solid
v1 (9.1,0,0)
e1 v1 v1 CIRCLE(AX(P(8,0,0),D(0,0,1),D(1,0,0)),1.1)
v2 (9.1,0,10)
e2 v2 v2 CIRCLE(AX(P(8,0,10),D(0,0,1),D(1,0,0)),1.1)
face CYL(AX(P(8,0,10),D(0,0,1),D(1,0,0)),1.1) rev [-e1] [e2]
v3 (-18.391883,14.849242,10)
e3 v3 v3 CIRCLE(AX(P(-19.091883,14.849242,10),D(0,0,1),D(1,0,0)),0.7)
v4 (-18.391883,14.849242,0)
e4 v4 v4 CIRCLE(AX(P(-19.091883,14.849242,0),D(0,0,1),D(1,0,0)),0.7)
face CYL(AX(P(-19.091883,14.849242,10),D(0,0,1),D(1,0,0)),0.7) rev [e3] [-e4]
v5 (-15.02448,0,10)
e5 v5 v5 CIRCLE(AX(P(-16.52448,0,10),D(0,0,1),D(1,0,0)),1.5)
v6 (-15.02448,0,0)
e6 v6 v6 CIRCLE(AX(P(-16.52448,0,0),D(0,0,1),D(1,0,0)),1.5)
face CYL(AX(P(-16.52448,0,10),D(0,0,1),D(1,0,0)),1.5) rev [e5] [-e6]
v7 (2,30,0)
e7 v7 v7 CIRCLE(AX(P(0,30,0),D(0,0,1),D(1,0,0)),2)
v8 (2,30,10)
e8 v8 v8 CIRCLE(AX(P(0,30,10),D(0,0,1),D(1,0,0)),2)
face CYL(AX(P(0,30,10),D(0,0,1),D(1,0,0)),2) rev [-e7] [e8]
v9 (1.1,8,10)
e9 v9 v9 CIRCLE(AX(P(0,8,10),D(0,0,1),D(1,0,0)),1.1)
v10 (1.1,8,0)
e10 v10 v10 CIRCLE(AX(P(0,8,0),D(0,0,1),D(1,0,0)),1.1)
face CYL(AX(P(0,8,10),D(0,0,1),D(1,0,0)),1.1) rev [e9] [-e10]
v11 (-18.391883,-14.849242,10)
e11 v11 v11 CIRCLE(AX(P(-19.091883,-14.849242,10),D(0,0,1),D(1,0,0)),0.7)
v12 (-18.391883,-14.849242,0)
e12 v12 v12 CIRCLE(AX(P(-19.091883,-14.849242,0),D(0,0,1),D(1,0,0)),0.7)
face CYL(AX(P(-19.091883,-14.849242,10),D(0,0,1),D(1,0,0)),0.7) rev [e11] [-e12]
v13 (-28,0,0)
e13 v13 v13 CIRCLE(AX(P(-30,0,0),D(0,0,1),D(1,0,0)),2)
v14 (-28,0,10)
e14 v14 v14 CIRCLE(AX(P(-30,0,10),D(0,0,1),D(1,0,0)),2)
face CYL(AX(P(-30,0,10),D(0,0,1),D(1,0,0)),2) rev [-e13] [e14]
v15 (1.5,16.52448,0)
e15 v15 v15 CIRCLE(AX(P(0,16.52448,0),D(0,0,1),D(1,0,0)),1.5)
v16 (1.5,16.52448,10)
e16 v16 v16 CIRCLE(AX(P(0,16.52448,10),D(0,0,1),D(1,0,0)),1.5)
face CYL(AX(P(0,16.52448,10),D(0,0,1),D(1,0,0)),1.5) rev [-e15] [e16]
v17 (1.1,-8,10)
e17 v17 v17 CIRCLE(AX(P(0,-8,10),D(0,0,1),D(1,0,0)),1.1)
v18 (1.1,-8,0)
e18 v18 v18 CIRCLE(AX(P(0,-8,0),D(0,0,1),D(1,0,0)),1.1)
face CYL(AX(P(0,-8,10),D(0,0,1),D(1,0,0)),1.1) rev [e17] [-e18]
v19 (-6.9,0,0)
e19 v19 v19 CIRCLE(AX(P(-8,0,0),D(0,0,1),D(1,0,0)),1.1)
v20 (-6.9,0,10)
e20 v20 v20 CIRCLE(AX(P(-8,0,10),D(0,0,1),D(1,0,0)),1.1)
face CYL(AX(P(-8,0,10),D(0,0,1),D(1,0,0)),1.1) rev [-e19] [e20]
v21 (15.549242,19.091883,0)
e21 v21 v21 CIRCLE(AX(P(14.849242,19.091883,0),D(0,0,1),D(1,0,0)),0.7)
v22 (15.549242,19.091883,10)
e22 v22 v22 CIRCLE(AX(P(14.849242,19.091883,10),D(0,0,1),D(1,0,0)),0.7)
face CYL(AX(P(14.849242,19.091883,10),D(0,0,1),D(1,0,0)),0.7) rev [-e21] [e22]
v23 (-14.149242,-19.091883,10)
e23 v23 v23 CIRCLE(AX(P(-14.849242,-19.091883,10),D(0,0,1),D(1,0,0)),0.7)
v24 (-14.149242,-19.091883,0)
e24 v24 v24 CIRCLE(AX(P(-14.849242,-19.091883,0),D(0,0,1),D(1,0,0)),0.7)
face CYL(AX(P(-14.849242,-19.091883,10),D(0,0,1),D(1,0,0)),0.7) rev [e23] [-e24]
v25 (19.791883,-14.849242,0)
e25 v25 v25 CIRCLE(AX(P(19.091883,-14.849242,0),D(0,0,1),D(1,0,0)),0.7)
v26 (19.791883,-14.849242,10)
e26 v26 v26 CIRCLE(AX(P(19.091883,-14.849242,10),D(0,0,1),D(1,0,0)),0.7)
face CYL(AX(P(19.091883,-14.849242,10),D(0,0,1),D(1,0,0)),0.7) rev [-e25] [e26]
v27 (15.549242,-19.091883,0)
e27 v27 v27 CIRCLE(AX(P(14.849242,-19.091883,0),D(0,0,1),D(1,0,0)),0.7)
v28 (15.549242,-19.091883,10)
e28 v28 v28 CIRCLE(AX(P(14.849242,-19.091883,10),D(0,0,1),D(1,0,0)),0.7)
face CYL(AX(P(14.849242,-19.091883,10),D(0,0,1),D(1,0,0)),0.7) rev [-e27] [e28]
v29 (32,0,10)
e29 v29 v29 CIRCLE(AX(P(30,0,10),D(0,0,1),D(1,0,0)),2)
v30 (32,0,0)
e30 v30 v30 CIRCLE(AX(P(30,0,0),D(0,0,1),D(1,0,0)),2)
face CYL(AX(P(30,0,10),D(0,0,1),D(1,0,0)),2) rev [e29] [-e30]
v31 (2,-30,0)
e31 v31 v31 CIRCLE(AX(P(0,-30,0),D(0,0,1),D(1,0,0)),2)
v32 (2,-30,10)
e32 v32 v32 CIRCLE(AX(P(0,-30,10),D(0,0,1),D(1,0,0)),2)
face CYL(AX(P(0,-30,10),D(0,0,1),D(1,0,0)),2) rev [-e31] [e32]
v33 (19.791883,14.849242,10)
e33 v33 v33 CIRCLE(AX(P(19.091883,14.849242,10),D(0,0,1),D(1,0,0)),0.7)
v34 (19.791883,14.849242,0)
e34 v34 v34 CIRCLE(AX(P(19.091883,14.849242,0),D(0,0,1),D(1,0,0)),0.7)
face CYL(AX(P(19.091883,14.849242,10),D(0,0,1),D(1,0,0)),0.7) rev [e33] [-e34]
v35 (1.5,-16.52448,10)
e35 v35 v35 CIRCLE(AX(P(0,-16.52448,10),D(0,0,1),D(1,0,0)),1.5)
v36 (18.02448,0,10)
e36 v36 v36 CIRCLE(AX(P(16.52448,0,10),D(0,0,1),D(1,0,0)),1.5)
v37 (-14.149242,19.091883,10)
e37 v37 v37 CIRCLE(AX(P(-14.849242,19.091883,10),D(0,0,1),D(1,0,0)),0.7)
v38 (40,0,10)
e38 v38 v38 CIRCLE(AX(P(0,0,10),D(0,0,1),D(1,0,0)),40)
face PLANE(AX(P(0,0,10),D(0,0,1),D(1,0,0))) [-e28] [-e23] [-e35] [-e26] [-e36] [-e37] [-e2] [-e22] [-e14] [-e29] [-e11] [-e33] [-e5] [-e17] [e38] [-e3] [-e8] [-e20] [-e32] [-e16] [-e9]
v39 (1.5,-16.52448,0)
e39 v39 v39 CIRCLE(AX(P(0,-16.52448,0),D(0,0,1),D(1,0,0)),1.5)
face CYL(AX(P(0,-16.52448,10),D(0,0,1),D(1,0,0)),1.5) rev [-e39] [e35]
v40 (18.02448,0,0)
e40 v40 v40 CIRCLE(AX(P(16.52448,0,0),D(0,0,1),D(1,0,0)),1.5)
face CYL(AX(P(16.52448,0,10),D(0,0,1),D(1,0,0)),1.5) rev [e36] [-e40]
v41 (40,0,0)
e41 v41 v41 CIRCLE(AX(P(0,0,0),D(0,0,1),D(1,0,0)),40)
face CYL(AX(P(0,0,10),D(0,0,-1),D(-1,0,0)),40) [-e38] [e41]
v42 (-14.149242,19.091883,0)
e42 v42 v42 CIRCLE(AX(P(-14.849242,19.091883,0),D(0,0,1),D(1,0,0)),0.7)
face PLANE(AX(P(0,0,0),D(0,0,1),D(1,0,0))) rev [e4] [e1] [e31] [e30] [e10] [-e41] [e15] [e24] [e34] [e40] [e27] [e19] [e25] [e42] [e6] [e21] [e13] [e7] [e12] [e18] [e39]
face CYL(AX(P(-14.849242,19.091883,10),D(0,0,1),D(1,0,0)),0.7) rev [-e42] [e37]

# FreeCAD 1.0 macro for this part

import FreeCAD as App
import Part
import Sketcher
Q = App.Units.Quantity

doc = App.newDocument("Part")
params = doc.addObject("Spreadsheet::Sheet", "Params")
for row, (alias, value) in enumerate([
    ("sketch1_diameter", "80 mm"),
    ("pad1_length", "10 mm"),
    ("sketch2_diameter", "4 mm"),
    ("hole_diameter", "4 mm"),
    ("hole_depth", "10 mm"),
    ("sketch3_diameter", "2.2 mm"),
    ("hole2_diameter", "2.2 mm"),
    ("hole2_depth", "10 mm"),
    ("sketch4_diameter", "3 mm"),
    ("hole3_diameter", "3 mm"),
    ("hole3_depth", "10 mm"),
    ("sketch5_diameter", "1.4 mm"),
    ("hole4_diameter", "1.4 mm"),
], start=1):
    params.set(f"A{row}", alias)
    params.set(f"B{row}", "=" + value)
    params.setAlias(f"B{row}", alias)

body = doc.addObject("PartDesign::Body", "Body")

# Sketch on XY plane
sketch1 = body.newObject("Sketcher::SketchObject", "Sketch")
sketch1.AttachmentSupport = (doc.getObject("XY_Plane"), [""])
sketch1.MapMode = "FlatFace"
sketch1.addGeometry(Part.Circle(App.Vector(0, 0, 0), App.Vector(0, 0, 1), 40), False)
sketch1.addConstraint([
    Sketcher.Constraint("Coincident", 0, 3, -1, 1),
    Sketcher.Constraint("Diameter", 0, Q("80 mm")),
])
sketch1.setExpression("Constraints[1]", "Params.sketch1_diameter")
pad1 = body.newObject("PartDesign::Pad", "Pad")
pad1.Profile = sketch1
pad1.setExpression("Length", "Params.pad1_length")

# Sketch on XY plane
sketch2 = body.newObject("Sketcher::SketchObject", "Sketch001")
sketch2.AttachmentSupport = (doc.getObject("XY_Plane"), [""])
sketch2.MapMode = "FlatFace"
sketch2.AttachmentOffset = App.Placement(App.Vector(0, 0, 10), App.Rotation())
sketch2.addGeometry([
    Part.Circle(App.Vector(0, 30, 0), App.Vector(0, 0, 1), 2),
    Part.Circle(App.Vector(30, 0, 0), App.Vector(0, 0, 1), 2),
    Part.Circle(App.Vector(-30, 0, 0), App.Vector(0, 0, 1), 2),
    Part.Circle(App.Vector(0, -30, 0), App.Vector(0, 0, 1), 2),
], False)
sketch2.addConstraint([
    Sketcher.Constraint("Equal", 0, 1),
    Sketcher.Constraint("Equal", 1, 2),
    Sketcher.Constraint("Equal", 2, 3),
    Sketcher.Constraint("Symmetric", 1, 3, 2, 3, -1, 1),
    Sketcher.Constraint("Symmetric", 0, 3, 3, 3, -1, 1),
    Sketcher.Constraint("PointOnObject", 0, 3, -2),
    Sketcher.Constraint("PointOnObject", 1, 3, -1),
    Sketcher.Constraint("Diameter", 0, Q("4 mm")),
    Sketcher.Constraint("DistanceY", -1, 1, 0, 3, Q("30 mm")),
    Sketcher.Constraint("DistanceX", -1, 1, 1, 3, Q("30 mm")),
])
sketch2.setExpression("Constraints[7]", "Params.sketch2_diameter")
doc.recompute()
hole = body.newObject("PartDesign::Hole", "Hole")
hole.Profile = sketch2
hole.ThreadType = "None"
hole.setExpression("Diameter", "Params.hole_diameter")
hole.DepthType = "Dimension"
hole.setExpression("Depth", "Params.hole_depth")
hole.DrillPoint = "Angled"
hole.DrillPointAngle = 118

# Sketch on XY plane
sketch3 = body.newObject("Sketcher::SketchObject", "Sketch002")
sketch3.AttachmentSupport = (doc.getObject("XY_Plane"), [""])
sketch3.MapMode = "FlatFace"
sketch3.AttachmentOffset = App.Placement(App.Vector(0, 0, 10), App.Rotation())
sketch3.addGeometry([
    Part.Circle(App.Vector(0, 8, 0), App.Vector(0, 0, 1), 1.1),
    Part.Circle(App.Vector(0, -8, 0), App.Vector(0, 0, 1), 1.1),
    Part.Circle(App.Vector(-8, 0, 0), App.Vector(0, 0, 1), 1.1),
    Part.Circle(App.Vector(8, 0, 0), App.Vector(0, 0, 1), 1.1),
], False)
sketch3.addConstraint([
    Sketcher.Constraint("Equal", 0, 1),
    Sketcher.Constraint("Equal", 1, 2),
    Sketcher.Constraint("Equal", 2, 3),
    Sketcher.Constraint("Symmetric", 0, 3, 1, 3, -1, 1),
    Sketcher.Constraint("Symmetric", 2, 3, 3, 3, -1, 1),
    Sketcher.Constraint("PointOnObject", 0, 3, -2),
    Sketcher.Constraint("PointOnObject", 2, 3, -1),
    Sketcher.Constraint("Diameter", 0, Q("2.2 mm")),
    Sketcher.Constraint("DistanceY", -1, 1, 0, 3, Q("8 mm")),
    Sketcher.Constraint("DistanceX", 2, 3, -1, 1, Q("8 mm")),
])
sketch3.setExpression("Constraints[7]", "Params.sketch3_diameter")
doc.recompute()
hole2 = body.newObject("PartDesign::Hole", "Hole001")
hole2.Profile = sketch3
hole2.ThreadType = "None"
hole2.setExpression("Diameter", "Params.hole2_diameter")
hole2.DepthType = "Dimension"
hole2.setExpression("Depth", "Params.hole2_depth")
hole2.DrillPoint = "Angled"
hole2.DrillPointAngle = 118

# Sketch on XY plane
sketch4 = body.newObject("Sketcher::SketchObject", "Sketch003")
sketch4.AttachmentSupport = (doc.getObject("XY_Plane"), [""])
sketch4.MapMode = "FlatFace"
sketch4.AttachmentOffset = App.Placement(App.Vector(0, 0, 10), App.Rotation())
sketch4.addGeometry([
    Part.Circle(App.Vector(0, -16.5, 0), App.Vector(0, 0, 1), 1.5),
    Part.Circle(App.Vector(16.5, 0, 0), App.Vector(0, 0, 1), 1.5),
    Part.Circle(App.Vector(0, 16.5, 0), App.Vector(0, 0, 1), 1.5),
    Part.Circle(App.Vector(-16.5, 0, 0), App.Vector(0, 0, 1), 1.5),
], False)
sketch4.addConstraint([
    Sketcher.Constraint("Equal", 0, 1),
    Sketcher.Constraint("Equal", 1, 2),
    Sketcher.Constraint("Equal", 2, 3),
    Sketcher.Constraint("Symmetric", 0, 3, 2, 3, -1, 1),
    Sketcher.Constraint("Symmetric", 1, 3, 3, 3, -1, 1),
    Sketcher.Constraint("PointOnObject", 0, 3, -2),
    Sketcher.Constraint("PointOnObject", 1, 3, -1),
    Sketcher.Constraint("Diameter", 0, Q("3 mm")),
    Sketcher.Constraint("DistanceY", 0, 3, -1, 1, Q("16.52448 mm")),
    Sketcher.Constraint("DistanceX", -1, 1, 1, 3, Q("16.52448 mm")),
])
sketch4.setExpression("Constraints[7]", "Params.sketch4_diameter")
doc.recompute()
hole3 = body.newObject("PartDesign::Hole", "Hole002")
hole3.Profile = sketch4
hole3.ThreadType = "None"
hole3.setExpression("Diameter", "Params.hole3_diameter")
hole3.DepthType = "Dimension"
hole3.setExpression("Depth", "Params.hole3_depth")
hole3.DrillPoint = "Angled"
hole3.DrillPointAngle = 118

# Sketch on XY plane
sketch5 = body.newObject("Sketcher::SketchObject", "Sketch004")
sketch5.AttachmentSupport = (doc.getObject("XY_Plane"), [""])
sketch5.MapMode = "FlatFace"
sketch5.AttachmentOffset = App.Placement(App.Vector(0, 0, 10), App.Rotation())
sketch5.addGeometry([
    Part.Circle(App.Vector(-14.8, -19.1, 0), App.Vector(0, 0, 1), 0.7),
    Part.Circle(App.Vector(-19.1, -14.8, 0), App.Vector(0, 0, 1), 0.7),
], False)
sketch5.addConstraint([
    Sketcher.Constraint("Equal", 0, 1),
    Sketcher.Constraint("Diameter", 0, Q("1.4 mm")),
    Sketcher.Constraint("DistanceX", 1, 3, 0, 3, Q("4.242641 mm")),
    Sketcher.Constraint("DistanceY", 0, 3, 1, 3, Q("4.242641 mm")),
    Sketcher.Constraint("DistanceX", 0, 3, -1, 1, Q("14.849242 mm")),
    Sketcher.Constraint("DistanceY", 0, 3, -1, 1, Q("19.091883 mm")),
])
sketch5.setExpression("Constraints[1]", "Params.sketch5_diameter")
doc.recompute()
hole4 = body.newObject("PartDesign::Hole", "Hole003")
hole4.Profile = sketch5
hole4.ThreadType = "None"
hole4.setExpression("Diameter", "Params.hole4_diameter")
hole4.DepthType = "ThroughAll"
doc.recompute()

polarpattern = body.newObject("PartDesign::PolarPattern", "PolarPattern")
polarpattern.Originals = [hole4]
polarpattern.Axis = (doc.getObject("Z_Axis"), [""])
polarpattern.Angle = 360
polarpattern.Occurrences = 4
body.Tip = polarpattern

doc.recompute()
